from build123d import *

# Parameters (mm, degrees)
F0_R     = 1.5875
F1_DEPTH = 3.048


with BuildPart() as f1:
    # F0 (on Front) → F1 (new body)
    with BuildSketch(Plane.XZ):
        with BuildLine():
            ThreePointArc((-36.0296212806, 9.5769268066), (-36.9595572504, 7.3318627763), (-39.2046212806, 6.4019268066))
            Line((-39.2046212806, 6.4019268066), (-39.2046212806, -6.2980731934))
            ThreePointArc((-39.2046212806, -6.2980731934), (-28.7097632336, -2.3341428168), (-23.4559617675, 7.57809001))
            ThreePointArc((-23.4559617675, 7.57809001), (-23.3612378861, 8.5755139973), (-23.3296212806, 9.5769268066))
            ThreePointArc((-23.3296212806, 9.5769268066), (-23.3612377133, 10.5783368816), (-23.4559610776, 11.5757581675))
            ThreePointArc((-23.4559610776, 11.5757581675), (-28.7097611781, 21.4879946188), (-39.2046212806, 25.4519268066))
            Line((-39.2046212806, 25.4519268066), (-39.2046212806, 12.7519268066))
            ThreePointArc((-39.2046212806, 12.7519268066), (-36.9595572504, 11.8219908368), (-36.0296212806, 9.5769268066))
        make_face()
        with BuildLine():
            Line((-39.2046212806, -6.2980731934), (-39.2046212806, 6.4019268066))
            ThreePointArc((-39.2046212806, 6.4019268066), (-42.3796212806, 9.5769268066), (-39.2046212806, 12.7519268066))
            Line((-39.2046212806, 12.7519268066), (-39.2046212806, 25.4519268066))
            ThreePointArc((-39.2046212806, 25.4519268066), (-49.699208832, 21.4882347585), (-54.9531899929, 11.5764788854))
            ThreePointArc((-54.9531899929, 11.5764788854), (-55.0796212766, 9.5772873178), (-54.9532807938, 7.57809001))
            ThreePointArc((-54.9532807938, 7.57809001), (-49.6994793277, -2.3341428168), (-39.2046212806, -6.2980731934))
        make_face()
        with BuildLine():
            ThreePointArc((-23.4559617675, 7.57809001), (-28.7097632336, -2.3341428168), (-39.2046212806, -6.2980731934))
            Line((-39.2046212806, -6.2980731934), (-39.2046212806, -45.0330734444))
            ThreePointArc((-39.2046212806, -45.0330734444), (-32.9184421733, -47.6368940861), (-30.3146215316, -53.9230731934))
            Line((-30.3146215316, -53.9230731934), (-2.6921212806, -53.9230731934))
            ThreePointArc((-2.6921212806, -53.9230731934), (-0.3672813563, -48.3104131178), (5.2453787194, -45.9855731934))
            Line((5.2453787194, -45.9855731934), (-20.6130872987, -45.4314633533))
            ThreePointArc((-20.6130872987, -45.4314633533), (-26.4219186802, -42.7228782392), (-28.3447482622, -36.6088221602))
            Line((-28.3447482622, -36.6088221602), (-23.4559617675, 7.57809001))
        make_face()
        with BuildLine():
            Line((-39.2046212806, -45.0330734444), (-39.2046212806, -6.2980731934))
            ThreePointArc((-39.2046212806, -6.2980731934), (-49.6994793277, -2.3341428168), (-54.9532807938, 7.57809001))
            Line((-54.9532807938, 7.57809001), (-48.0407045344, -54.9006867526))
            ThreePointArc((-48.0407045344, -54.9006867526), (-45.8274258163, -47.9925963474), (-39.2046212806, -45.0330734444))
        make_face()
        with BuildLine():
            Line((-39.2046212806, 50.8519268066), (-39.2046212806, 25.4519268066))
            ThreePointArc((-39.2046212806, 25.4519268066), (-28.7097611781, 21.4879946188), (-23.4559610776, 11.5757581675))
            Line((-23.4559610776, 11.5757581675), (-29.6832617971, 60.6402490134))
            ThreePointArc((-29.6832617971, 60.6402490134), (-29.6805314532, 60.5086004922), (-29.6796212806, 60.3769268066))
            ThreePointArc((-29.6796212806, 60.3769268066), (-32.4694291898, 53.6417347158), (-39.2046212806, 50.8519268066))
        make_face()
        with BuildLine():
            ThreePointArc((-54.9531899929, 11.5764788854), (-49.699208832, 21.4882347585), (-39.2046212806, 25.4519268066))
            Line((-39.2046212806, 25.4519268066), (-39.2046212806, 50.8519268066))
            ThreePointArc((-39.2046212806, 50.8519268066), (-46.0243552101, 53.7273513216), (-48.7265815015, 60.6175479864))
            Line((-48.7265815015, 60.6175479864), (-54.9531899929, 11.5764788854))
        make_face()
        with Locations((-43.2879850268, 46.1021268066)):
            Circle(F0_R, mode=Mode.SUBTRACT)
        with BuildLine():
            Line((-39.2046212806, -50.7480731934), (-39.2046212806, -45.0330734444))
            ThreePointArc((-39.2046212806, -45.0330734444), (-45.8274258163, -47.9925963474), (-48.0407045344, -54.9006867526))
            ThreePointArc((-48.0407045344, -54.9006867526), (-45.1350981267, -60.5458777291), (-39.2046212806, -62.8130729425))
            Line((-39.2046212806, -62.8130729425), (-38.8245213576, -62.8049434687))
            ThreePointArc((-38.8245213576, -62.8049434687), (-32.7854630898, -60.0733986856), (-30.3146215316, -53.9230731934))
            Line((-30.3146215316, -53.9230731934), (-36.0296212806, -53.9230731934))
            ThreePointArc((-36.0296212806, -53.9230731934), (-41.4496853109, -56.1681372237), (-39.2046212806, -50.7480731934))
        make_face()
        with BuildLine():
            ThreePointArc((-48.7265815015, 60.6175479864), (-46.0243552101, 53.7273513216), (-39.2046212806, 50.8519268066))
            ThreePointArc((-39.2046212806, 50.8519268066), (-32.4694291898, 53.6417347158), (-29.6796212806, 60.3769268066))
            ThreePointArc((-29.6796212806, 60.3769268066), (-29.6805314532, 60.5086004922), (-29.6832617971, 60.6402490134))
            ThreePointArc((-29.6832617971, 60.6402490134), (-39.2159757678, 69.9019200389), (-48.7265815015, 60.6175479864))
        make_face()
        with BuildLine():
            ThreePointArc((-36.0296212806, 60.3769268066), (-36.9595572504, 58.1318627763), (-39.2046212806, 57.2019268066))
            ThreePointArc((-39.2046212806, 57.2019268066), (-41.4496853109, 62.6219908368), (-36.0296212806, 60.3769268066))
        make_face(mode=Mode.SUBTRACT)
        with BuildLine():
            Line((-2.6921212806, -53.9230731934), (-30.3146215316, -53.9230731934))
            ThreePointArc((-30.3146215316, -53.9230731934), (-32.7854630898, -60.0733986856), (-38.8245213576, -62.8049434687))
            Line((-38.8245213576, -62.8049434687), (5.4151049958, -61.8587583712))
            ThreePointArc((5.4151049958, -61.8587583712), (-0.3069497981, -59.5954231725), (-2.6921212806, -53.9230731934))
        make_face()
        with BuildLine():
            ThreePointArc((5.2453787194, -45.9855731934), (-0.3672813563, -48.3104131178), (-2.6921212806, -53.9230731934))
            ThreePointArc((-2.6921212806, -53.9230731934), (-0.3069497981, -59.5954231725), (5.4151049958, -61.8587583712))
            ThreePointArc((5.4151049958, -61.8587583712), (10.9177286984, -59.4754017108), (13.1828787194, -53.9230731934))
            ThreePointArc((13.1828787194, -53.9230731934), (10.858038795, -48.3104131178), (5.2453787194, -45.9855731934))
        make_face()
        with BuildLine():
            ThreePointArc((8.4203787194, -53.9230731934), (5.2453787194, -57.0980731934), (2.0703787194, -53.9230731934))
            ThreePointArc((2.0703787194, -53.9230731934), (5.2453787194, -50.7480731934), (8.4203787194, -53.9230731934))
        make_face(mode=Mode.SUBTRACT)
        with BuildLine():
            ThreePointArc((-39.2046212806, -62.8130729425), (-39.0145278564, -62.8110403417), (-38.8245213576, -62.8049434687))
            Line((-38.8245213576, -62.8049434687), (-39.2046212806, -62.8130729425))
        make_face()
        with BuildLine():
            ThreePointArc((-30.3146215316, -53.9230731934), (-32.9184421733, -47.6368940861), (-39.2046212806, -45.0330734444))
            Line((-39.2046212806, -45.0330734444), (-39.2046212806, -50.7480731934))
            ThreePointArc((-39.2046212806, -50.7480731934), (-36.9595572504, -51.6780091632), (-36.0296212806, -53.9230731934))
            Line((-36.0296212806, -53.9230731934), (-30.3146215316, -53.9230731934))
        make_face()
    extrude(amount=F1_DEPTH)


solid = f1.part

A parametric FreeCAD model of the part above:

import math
import FreeCAD as App
import Part
import Sketcher
Q = App.Units.Quantity

doc = App.newDocument("Part")
params = doc.addObject("Spreadsheet::Sheet", "Params")
for row, (alias, value) in enumerate([
    ("sketch1_diameter", "0.25 in"),
    ("sketch1_radius", "0.35 in"),
    ("sketch1_diameter2", "0.125 in"),
    ("sketch1_radius2", "0.3125 in"),
    ("sketch1_radius3", "0.313 in"),
    ("pad1_length", "0.12 in"),
], start=1):
    params.set(f"A{row}", alias)
    params.set(f"B{row}", "=" + value)
    params.setAlias(f"B{row}", alias)

body = doc.addObject("PartDesign::Body", "Body")

# Sketch on XZ plane
sketch1 = body.newObject("Sketcher::SketchObject", "Sketch")
sketch1.AttachmentSupport = (doc.getObject("XZ_Plane"), [""])
sketch1.MapMode = "FlatFace"
sketch1.addGeometry([
    Part.ArcOfCircle(Part.Circle(App.Vector(-39.204621, -53.923073, 0), App.Vector(0, 0, 1), 8.89), math.radians(-173.686542), math.radians(-90)),  # 0
    Part.ArcOfCircle(Part.Circle(App.Vector(-39.204621, -53.923073, 0), App.Vector(0, 0, 1), 8.89), math.radians(-90), math.radians(-87.54952)),  # 1
    Part.LineSegment(App.Vector(-38.824521, -62.804943, 0), App.Vector(5.415105, -61.858758, 0)),  # 2
    Part.ArcOfCircle(Part.Circle(App.Vector(5.245379, -53.923073, 0), App.Vector(0, 0, 1), 7.9375), math.radians(-88.77476), math.radians(0)),  # 3
    Part.ArcOfCircle(Part.Circle(App.Vector(5.245379, -53.923073, 0), App.Vector(0, 0, 1), 7.9375), math.radians(0), math.radians(90)),  # 4
    Part.LineSegment(App.Vector(5.245379, -45.985573, 0), App.Vector(-20.613087, -45.431463, 0)),  # 5
    Part.ArcOfCircle(Part.Circle(App.Vector(-20.442765, -37.483088, 0), App.Vector(0, 0, 1), 7.9502), math.radians(173.686542), math.radians(268.772421)),  # 6
    Part.LineSegment(App.Vector(-28.344748, -36.608822, 0), App.Vector(-23.455962, 7.57809, 0)),  # 7
    Part.ArcOfCircle(Part.Circle(App.Vector(-39.204621, 9.576927, 0), App.Vector(0, 0, 1), 15.875), math.radians(-7.233367), math.radians(0)),  # 8
    Part.ArcOfCircle(Part.Circle(App.Vector(-39.204621, 9.576927, 0), App.Vector(0, 0, 1), 15.875), math.radians(0), math.radians(7.233347)),  # 9
    Part.LineSegment(App.Vector(-23.455961, 11.575758, 0), App.Vector(-29.683262, 60.640249, 0)),  # 10
    Part.ArcOfCircle(Part.Circle(App.Vector(-39.204621, 60.376927, 0), App.Vector(0, 0, 1), 9.525), math.radians(1.584165), math.radians(178.552436)),  # 11
    Part.LineSegment(App.Vector(-48.726582, 60.617548, 0), App.Vector(-54.95319, 11.576479, 0)),  # 12
    Part.ArcOfCircle(Part.Circle(App.Vector(-39.204621, 9.576927, 0), App.Vector(0, 0, 1), 15.875), math.radians(172.764031), math.radians(187.233367)),  # 13
    Part.LineSegment(App.Vector(-54.953281, 7.57809, 0), App.Vector(-48.040705, -54.900687, 0)),  # 14
    Part.ArcOfCircle(Part.Circle(App.Vector(-39.204621, -53.923073, 0), App.Vector(0, 0, 1), 3.175), math.radians(90), math.radians(360)),  # 15
    Part.ArcOfCircle(Part.Circle(App.Vector(-39.204621, -53.923073, 0), App.Vector(0, 0, 1), 3.175), math.radians(0), math.radians(90)),  # 16
    Part.Circle(App.Vector(5.245379, -53.923073, 0), App.Vector(0, 0, 1), 3.175),  # 17
    Part.ArcOfCircle(Part.Circle(App.Vector(-39.204621, 9.576927, 0), App.Vector(0, 0, 1), 3.175), math.radians(-90), math.radians(0)),  # 18
    Part.ArcOfCircle(Part.Circle(App.Vector(-39.204621, 9.576927, 0), App.Vector(0, 0, 1), 3.175), math.radians(90), math.radians(270)),  # 19
    Part.ArcOfCircle(Part.Circle(App.Vector(-39.204621, 9.576927, 0), App.Vector(0, 0, 1), 3.175), math.radians(0), math.radians(90)),  # 20
    Part.Circle(App.Vector(-43.287985, 46.102127, 0), App.Vector(0, 0, 1), 1.5875),  # 21
    Part.ArcOfCircle(Part.Circle(App.Vector(-39.204621, 60.376927, 0), App.Vector(0, 0, 1), 3.175), math.radians(0), math.radians(270)),  # 22
    Part.ArcOfCircle(Part.Circle(App.Vector(-39.204621, 60.376927, 0), App.Vector(0, 0, 1), 3.175), math.radians(-90), math.radians(0)),  # 23
], False)
sketch1.addConstraint([
    Sketcher.Constraint("Tangent", 0, 2, 1, 1),
    Sketcher.Constraint("Coincident", 1, 2, 2, 1),
    Sketcher.Constraint("Tangent", 2, 2, 3, 1),
    Sketcher.Constraint("Tangent", 3, 2, 4, 1),
    Sketcher.Constraint("Coincident", 4, 2, 5, 1),
    Sketcher.Constraint("Tangent", 5, 2, 6, 2),
    Sketcher.Constraint("Tangent", 6, 1, 7, 1),
    Sketcher.Constraint("Coincident", 7, 2, 8, 1),
    Sketcher.Constraint("Tangent", 8, 2, 9, 1),
    Sketcher.Constraint("Tangent", 9, 2, 10, 1),
    Sketcher.Constraint("Coincident", 10, 2, 11, 1),
    Sketcher.Constraint("Coincident", 11, 2, 12, 1),
    Sketcher.Constraint("Tangent", 12, 2, 13, 1),
    Sketcher.Constraint("Coincident", 13, 2, 14, 1),
    Sketcher.Constraint("Tangent", 14, 2, 0, 1),
    Sketcher.Constraint("Tangent", 15, 1, 16, 2),
    Sketcher.Constraint("Coincident", 16, 1, 15, 2),
    Sketcher.Constraint("Tangent", 18, 1, 19, 2),
    Sketcher.Constraint("Tangent", 19, 1, 20, 2),
    Sketcher.Constraint("Tangent", 20, 1, 18, 2),
    Sketcher.Constraint("Tangent", 22, 1, 23, 2),
    Sketcher.Constraint("Coincident", 23, 1, 22, 2),
    Sketcher.Constraint("Coincident", 13, 3, 8, 3),
    Sketcher.Constraint("Coincident", 15, 3, 0, 3),
    Sketcher.Constraint("Coincident", 17, 3, 3, 3),
    Sketcher.Constraint("Coincident", 18, 3, 8, 3),
    Sketcher.Constraint("Coincident", 22, 3, 11, 3),
    Sketcher.Constraint("Equal", 0, 1),
    Sketcher.Constraint("Equal", 3, 4),
    Sketcher.Constraint("Equal", 8, 9),
    Sketcher.Constraint("Equal", 9, 13),
    Sketcher.Constraint("Equal", 16, 17),
    Sketcher.Constraint("Equal", 17, 18),
    Sketcher.Constraint("Equal", 20, 22),
    Sketcher.Constraint("Horizontal", 1, 3, 3, 3),
    Sketcher.Constraint("Horizontal", 17, 3, 3, 2),
    Sketcher.Constraint("Horizontal", 20, 3, 8, 2),
    Sketcher.Constraint("Horizontal", 7, 2, 13, 2),
    Sketcher.Constraint("Horizontal", 3, 2, 16, 1),
    Sketcher.Constraint("Horizontal", 8, 2, 20, 1),
    Sketcher.Constraint("Horizontal", 23, 3, 22, 1),
    Sketcher.Constraint("Vertical", 1, 3, 8, 3),
    Sketcher.Constraint("Vertical", 9, 3, 11, 3),
    Sketcher.Constraint("Vertical", 23, 3, 0, 2),
    Sketcher.Constraint("Vertical", 17, 3, 4, 2),
    Sketcher.Constraint("Vertical", 7, 2, 9, 2),
    Sketcher.Constraint("Vertical", 0, 2, 15, 1),
    Sketcher.Constraint("Vertical", 15, 1, 18, 1),
    Sketcher.Constraint("Vertical", 18, 1, 19, 1),
    Sketcher.Constraint("Vertical", 19, 1, 23, 1),
    Sketcher.Constraint("Diameter", 17, Q("0.25 in")),
    Sketcher.Constraint("Radius", 0, Q("0.35 in")),
    Sketcher.Constraint("Diameter", 21, Q("0.125 in")),
    Sketcher.Constraint("Radius", 3, Q("0.3125 in")),
    Sketcher.Constraint("Radius", 6, Q("0.313 in")),
    Sketcher.Constraint("Radius", 8, Q("0.625 in")),
    Sketcher.Constraint("Radius", 11, Q("0.375 in")),
    Sketcher.Constraint("DistanceY", 8, 3, 11, 3, Q("2 in")),
    Sketcher.Constraint("DistanceY", 0, 3, 8, 3, Q("2.5 in")),
    Sketcher.Constraint("DistanceX", 1, 3, 3, 3, Q("1.75 in")),
    Sketcher.Constraint("DistanceY", 21, 3, 11, 3, Q("0.562 in")),
    Sketcher.Constraint("Distance", 10, Q("49.458099 mm")),
    Sketcher.Constraint("DistanceX", 0, 2, 1, 2, Q("0.3801 mm")),
    Sketcher.Constraint("DistanceY", 11, 2, 10, 2, Q("0.022701 mm")),
    Sketcher.Constraint("DistanceX", 0, 3, -1, 1, Q("39.204621 mm")),
    Sketcher.Constraint("DistanceY", 6, 3, -1, 1, Q("37.483088 mm")),
    Sketcher.Constraint("DistanceY", 2, 2, -1, 1, Q("61.858758 mm")),
    Sketcher.Constraint("DistanceX", 6, 1, -1, 1, Q("28.344748 mm")),
    Sketcher.Constraint("DistanceX", 21, 3, -1, 1, Q("43.287985 mm")),
])
sketch1.setExpression("Constraints[50]", "Params.sketch1_diameter")
sketch1.setExpression("Constraints[51]", "Params.sketch1_radius")
sketch1.setExpression("Constraints[52]", "Params.sketch1_diameter2")
sketch1.setExpression("Constraints[53]", "Params.sketch1_radius2")
sketch1.setExpression("Constraints[54]", "Params.sketch1_radius3")
pad1 = body.newObject("PartDesign::Pad", "Pad")
pad1.Profile = sketch1
pad1.setExpression("Length", "Params.pad1_length")

doc.recompute()
